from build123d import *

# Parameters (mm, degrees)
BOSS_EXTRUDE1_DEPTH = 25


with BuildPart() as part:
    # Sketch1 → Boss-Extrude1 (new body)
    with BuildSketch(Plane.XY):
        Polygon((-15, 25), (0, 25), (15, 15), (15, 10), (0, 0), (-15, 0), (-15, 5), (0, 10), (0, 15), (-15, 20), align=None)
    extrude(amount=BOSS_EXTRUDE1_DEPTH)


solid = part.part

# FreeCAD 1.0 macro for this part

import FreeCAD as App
import Part
import Sketcher
from FreeCAD import Vector
Q = App.Units.Quantity


def add_polygon(sketch, points):
    """Adds a closed chain of lines whose ends are joined by coincident constraints."""
    first, n = sketch.GeometryCount, len(points)
    for a, b in zip(points, points[1:] + points[:1]):
        sketch.addGeometry(Part.LineSegment(App.Vector(*a, 0), App.Vector(*b, 0)), False)
    for i in range(n):
        sketch.addConstraint(Sketcher.Constraint("Coincident", first + i, 2, first + (i + 1) % n, 1))

doc = App.newDocument("Part")
params = doc.addObject("Spreadsheet::Sheet", "Params")
for row, (alias, value) in enumerate([
    ("sketch1_width", "15 mm"),
    ("sketch1_height", "5 mm"),
    ("pad1_length", "25 mm"),
], start=1):
    params.set(f"A{row}", alias)
    params.set(f"B{row}", "=" + value)
    params.setAlias(f"B{row}", alias)

body = doc.addObject("PartDesign::Body", "Body")

sketch1 = doc.addObject("Sketcher::SketchObject", "Sketch")
body.addObject(sketch1)
sketch1.AttachmentSupport = (doc.XY_Plane, [""])
sketch1.MapMode = "FlatFace"
add_polygon(sketch1, [(0, 25), (-15, 25), (-15, 20), (0, 15), (0, 10), (-15, 5), (-15, 0), (0, 0), (15, 10), (15, 15)])
sketch1.addConstraint(Sketcher.Constraint("Horizontal", 0))
sketch1.addConstraint(Sketcher.Constraint("Vertical", 1))
sketch1.addConstraint(Sketcher.Constraint("Vertical", 3))
sketch1.addConstraint(Sketcher.Constraint("Vertical", 5))
sketch1.addConstraint(Sketcher.Constraint("Horizontal", 6))
sketch1.addConstraint(Sketcher.Constraint("Vertical", 8))
sketch1.addConstraint(Sketcher.Constraint("Coincident", 6, 2, -1, 1))
sketch1.addConstraint(Sketcher.Constraint("PointOnObject", 2, 2, -2))
sketch1.addConstraint(Sketcher.Constraint("PointOnObject", 9, 2, -2))
sketch1.addConstraint(Sketcher.Constraint("Horizontal", 3, 2, 7, 2))
sketch1.addConstraint(Sketcher.Constraint("Horizontal", 2, 2, 8, 2))
sketch1.addConstraint(Sketcher.Constraint("Vertical", 1, 2, 4, 2))
sketch1.addConstraint(Sketcher.Constraint("Equal", 1, 3))
sketch1.addConstraint(Sketcher.Constraint("Equal", 3, 5))
sketch1.addConstraint(Sketcher.Constraint("Equal", 2, 4))
sketch1.addConstraint(Sketcher.Constraint("DistanceX", 0, 2, 0, 1, Q("15 mm")))
sketch1.addConstraint(Sketcher.Constraint("DistanceY", 1, 2, 1, 1, Q("5 mm")))
sketch1.addConstraint(Sketcher.Constraint("DistanceY", -1, 1, 0, 2, Q("25 mm")))
sketch1.addConstraint(Sketcher.Constraint("DistanceX", -1, 1, 7, 2, Q("15 mm")))
sketch1.setExpression("Constraints[25]", "Params.sketch1_width")
sketch1.setExpression("Constraints[26]", "Params.sketch1_height")
pad1 = doc.addObject("PartDesign::Pad", "Pad")
body.addObject(pad1)
pad1.Profile = sketch1
pad1.setExpression("Length", "Params.pad1_length")

doc.recompute()
